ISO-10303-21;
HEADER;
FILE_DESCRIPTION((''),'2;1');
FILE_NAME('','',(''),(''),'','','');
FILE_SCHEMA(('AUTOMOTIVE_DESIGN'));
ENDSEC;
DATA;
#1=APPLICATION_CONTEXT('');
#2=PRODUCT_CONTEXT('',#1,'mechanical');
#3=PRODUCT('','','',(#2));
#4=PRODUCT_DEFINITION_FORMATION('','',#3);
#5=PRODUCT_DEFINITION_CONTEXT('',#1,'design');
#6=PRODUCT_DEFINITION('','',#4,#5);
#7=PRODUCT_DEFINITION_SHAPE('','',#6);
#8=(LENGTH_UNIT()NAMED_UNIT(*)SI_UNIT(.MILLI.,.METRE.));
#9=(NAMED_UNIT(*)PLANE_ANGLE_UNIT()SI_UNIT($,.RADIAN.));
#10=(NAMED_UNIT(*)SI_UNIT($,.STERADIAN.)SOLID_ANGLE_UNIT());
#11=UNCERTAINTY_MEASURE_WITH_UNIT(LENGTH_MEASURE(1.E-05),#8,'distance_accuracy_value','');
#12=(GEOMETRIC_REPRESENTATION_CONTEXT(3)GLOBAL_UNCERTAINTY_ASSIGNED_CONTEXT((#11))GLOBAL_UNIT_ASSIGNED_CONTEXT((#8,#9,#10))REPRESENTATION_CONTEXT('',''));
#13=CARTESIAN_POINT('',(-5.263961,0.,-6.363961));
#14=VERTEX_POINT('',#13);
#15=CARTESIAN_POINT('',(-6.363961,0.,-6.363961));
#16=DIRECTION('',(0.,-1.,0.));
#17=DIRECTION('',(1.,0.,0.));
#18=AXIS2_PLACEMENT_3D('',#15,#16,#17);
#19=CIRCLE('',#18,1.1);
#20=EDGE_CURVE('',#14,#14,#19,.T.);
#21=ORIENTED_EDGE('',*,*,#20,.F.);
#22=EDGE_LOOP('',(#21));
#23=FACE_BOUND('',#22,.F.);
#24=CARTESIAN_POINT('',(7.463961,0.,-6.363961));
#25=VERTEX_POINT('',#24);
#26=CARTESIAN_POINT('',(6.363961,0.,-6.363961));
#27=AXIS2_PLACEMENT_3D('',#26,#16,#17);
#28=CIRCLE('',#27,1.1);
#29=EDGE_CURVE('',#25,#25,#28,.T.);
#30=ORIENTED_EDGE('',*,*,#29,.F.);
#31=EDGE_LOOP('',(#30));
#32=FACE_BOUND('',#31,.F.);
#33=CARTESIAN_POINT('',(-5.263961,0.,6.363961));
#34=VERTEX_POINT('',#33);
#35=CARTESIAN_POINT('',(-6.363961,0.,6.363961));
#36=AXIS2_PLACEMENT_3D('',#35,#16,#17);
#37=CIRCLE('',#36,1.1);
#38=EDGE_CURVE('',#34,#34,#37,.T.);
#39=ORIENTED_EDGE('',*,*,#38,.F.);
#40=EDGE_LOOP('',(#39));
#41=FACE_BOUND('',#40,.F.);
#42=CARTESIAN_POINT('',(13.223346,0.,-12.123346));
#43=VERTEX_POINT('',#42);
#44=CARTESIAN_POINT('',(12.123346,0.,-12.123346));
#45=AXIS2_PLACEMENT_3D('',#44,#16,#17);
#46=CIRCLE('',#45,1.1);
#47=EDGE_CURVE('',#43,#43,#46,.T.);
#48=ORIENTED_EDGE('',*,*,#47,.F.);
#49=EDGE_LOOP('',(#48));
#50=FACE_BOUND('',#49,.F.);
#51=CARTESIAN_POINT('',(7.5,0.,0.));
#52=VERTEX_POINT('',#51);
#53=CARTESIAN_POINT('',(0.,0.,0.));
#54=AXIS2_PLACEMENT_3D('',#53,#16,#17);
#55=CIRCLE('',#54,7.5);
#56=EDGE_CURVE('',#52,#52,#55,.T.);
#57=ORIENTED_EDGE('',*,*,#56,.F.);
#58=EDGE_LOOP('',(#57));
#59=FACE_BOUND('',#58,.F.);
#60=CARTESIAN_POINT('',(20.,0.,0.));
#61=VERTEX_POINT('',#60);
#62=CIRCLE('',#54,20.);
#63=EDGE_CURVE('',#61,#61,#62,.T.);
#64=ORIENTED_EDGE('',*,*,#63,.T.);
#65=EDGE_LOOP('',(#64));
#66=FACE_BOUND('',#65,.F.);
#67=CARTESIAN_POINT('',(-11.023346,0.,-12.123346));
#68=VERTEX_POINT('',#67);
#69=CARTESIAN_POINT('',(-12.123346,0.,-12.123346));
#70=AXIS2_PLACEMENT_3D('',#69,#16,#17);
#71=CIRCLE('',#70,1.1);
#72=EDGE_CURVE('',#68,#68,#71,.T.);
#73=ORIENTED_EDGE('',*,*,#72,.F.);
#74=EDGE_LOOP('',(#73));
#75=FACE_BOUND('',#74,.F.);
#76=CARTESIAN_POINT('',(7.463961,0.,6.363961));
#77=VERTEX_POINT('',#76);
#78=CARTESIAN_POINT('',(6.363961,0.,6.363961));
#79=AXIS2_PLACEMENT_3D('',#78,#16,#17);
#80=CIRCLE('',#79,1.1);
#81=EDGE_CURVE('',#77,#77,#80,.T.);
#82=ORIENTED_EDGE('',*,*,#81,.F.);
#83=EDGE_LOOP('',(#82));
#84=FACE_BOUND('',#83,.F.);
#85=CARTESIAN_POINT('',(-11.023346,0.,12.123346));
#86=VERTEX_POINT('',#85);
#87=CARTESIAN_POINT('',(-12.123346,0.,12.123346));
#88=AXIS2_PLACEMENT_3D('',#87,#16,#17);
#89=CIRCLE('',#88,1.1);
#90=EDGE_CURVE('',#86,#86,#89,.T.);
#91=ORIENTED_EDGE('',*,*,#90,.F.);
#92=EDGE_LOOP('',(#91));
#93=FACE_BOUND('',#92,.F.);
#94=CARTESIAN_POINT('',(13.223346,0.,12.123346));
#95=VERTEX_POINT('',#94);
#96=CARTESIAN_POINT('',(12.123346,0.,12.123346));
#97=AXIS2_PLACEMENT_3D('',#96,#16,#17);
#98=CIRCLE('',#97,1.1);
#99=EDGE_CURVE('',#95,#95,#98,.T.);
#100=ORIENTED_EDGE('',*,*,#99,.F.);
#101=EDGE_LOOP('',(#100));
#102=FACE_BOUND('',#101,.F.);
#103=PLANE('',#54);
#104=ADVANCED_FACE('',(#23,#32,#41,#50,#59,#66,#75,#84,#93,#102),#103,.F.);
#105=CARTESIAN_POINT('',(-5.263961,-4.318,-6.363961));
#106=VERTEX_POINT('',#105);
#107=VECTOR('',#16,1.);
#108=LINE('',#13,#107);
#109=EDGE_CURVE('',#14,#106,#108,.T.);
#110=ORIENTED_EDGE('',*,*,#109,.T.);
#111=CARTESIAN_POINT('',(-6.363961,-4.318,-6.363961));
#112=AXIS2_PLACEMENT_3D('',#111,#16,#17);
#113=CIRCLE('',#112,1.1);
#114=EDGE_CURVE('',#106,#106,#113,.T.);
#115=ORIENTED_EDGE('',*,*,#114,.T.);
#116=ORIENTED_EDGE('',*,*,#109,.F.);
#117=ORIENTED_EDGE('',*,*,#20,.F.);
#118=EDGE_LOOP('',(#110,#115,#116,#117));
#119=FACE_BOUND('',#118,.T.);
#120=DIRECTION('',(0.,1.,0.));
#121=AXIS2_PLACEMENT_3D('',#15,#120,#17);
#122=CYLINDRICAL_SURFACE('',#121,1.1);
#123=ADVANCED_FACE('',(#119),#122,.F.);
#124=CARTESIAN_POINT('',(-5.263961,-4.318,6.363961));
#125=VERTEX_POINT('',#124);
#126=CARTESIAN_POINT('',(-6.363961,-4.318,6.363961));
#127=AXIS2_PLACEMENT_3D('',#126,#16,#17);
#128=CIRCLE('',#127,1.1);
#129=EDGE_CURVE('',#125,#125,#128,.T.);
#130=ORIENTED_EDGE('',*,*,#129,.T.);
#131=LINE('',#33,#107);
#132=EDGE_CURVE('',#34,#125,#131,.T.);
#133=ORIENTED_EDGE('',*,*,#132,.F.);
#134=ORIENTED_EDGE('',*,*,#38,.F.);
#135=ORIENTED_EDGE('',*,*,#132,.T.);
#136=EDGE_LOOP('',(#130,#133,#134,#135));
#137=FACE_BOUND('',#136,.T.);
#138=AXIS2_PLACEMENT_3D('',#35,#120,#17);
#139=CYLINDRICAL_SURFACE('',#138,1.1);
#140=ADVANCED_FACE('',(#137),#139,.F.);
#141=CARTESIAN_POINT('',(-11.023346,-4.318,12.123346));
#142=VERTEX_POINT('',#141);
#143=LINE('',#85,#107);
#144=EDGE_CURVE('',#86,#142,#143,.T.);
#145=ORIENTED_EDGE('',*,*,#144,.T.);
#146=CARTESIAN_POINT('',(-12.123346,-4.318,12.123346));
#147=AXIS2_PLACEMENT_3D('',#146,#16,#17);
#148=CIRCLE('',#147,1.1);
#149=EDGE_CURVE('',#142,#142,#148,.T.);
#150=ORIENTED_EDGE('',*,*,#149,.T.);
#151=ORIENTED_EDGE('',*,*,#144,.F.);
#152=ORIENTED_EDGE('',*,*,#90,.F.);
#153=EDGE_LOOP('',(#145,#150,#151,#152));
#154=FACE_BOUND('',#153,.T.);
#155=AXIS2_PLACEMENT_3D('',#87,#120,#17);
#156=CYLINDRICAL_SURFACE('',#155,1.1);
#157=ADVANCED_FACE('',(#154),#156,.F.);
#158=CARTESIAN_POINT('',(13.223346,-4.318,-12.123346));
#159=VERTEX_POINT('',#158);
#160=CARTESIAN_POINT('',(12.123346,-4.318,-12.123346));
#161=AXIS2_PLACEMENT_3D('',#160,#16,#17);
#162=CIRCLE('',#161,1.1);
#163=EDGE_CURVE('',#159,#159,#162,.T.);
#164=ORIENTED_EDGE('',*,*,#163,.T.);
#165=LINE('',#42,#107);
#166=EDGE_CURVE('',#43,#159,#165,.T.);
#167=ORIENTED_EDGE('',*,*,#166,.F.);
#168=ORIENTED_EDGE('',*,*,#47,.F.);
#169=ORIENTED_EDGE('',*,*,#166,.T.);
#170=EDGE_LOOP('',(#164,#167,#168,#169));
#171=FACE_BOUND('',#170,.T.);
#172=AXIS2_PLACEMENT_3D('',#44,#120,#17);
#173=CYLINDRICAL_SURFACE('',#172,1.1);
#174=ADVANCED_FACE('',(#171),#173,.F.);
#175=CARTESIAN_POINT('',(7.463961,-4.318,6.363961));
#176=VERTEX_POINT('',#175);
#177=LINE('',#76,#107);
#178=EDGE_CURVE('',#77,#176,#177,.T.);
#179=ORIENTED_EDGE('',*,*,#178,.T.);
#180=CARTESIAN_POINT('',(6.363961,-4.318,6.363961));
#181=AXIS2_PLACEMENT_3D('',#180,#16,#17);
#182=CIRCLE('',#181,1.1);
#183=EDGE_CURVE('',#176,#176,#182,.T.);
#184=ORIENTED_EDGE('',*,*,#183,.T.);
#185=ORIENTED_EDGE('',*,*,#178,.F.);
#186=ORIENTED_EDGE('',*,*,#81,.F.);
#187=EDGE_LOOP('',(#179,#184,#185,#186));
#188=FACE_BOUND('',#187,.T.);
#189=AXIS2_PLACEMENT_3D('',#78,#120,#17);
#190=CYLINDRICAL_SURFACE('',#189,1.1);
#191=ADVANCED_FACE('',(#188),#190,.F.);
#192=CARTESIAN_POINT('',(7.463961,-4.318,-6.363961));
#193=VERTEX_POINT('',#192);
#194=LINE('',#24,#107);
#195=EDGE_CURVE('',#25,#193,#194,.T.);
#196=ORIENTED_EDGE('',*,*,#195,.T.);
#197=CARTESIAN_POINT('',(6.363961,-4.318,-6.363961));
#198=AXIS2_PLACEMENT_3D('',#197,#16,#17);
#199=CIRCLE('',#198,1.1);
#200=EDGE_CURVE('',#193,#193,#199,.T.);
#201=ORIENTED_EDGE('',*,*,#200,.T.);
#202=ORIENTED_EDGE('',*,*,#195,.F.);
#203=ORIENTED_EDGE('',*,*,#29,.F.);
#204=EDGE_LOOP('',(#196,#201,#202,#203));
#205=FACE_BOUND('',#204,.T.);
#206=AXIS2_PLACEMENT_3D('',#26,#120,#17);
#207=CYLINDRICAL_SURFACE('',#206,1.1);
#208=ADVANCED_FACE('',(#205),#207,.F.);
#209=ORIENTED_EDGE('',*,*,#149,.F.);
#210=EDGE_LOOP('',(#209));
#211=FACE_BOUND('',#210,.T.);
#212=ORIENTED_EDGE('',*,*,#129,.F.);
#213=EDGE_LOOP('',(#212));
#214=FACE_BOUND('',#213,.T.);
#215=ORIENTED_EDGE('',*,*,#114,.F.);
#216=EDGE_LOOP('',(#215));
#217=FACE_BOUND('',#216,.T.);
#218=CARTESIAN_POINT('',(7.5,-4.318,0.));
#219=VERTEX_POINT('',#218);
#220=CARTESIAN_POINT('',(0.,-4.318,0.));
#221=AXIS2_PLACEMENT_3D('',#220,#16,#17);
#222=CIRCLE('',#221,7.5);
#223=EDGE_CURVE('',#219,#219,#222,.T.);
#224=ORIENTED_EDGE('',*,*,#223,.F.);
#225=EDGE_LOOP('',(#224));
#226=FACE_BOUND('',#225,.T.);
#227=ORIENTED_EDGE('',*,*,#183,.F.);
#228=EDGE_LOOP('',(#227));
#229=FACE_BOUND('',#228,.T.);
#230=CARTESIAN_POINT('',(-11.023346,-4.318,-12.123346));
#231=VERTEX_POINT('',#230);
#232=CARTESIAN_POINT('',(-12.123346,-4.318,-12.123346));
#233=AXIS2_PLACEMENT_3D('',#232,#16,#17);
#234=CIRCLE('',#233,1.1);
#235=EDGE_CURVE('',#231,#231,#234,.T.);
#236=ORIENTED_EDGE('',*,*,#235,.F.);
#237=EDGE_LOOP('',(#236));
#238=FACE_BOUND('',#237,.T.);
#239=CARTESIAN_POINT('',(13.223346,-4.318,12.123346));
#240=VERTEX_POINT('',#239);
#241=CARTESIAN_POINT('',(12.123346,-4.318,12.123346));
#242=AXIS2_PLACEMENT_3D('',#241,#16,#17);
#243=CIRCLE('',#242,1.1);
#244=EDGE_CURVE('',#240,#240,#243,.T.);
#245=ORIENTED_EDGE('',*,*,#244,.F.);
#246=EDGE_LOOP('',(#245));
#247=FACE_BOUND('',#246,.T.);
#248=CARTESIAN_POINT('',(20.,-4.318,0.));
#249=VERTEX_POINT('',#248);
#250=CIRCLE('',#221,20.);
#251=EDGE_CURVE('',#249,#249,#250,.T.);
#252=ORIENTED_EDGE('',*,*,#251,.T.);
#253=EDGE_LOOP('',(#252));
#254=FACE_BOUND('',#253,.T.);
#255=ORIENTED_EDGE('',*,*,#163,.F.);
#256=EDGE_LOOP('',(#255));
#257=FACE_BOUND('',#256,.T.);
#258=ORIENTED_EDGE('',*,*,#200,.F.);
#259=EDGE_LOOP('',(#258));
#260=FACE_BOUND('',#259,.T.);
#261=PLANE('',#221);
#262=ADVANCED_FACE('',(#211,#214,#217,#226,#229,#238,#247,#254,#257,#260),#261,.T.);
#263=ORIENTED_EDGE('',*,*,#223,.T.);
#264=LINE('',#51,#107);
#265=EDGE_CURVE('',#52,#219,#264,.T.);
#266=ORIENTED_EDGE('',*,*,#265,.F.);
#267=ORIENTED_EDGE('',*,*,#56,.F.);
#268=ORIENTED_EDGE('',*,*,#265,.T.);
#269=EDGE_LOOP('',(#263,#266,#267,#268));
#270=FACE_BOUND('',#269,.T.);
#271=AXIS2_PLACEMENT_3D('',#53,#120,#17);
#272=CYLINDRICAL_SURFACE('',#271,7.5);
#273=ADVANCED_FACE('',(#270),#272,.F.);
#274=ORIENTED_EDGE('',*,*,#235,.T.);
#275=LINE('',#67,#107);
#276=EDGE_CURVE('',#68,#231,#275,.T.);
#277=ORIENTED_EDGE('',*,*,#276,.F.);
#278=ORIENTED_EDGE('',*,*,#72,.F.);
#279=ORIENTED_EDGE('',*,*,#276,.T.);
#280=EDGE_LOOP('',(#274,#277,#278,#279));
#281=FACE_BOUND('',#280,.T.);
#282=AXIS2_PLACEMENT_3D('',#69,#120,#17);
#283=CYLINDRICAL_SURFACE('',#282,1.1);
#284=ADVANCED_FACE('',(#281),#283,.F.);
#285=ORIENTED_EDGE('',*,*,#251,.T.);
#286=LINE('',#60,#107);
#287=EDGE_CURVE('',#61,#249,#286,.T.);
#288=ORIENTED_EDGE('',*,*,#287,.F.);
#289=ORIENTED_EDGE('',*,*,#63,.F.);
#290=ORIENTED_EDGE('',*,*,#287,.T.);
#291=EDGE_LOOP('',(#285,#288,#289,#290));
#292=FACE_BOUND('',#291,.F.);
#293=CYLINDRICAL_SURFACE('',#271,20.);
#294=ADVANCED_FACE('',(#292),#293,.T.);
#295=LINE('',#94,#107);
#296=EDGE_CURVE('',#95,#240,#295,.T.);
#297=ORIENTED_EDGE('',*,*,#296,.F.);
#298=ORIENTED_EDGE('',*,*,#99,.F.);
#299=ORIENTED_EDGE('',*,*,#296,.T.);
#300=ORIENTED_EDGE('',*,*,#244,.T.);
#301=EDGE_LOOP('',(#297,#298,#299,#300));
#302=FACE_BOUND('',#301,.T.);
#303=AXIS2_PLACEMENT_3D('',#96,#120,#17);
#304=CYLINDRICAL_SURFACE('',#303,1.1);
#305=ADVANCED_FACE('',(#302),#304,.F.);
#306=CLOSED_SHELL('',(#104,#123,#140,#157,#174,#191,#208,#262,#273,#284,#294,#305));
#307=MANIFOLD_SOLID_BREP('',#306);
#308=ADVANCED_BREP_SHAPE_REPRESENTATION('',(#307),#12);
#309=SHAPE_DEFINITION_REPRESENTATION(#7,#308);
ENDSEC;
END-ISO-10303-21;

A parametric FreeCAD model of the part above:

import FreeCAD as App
import Part
import Sketcher
from FreeCAD import Vector

doc = App.newDocument("Part")
body = doc.addObject("PartDesign::Body", "Body")

# Sketch on XZ plane
sketch1 = body.newObject("Sketcher::SketchObject", "Sketch")
sketch1.AttachmentSupport = (doc.getObject("XZ_Plane"), [""])
sketch1.MapMode = "FlatFace"
sketch1.addGeometry(Part.Circle(Vector(0, 0, 0), Vector(0, 0, 1), 20), False)
sketch1.addGeometry(Part.Circle(Vector(-12.1, -12.1, 0), Vector(0, 0, 1), 1.1), False)
sketch1.addGeometry(Part.Circle(Vector(-6.4, -6.4, 0), Vector(0, 0, 1), 1.1), False)
sketch1.addGeometry(Part.Circle(Vector(12.1, -12.1, 0), Vector(0, 0, 1), 1.1), False)
sketch1.addGeometry(Part.Circle(Vector(6.4, -6.4, 0), Vector(0, 0, 1), 1.1), False)
sketch1.addGeometry(Part.Circle(Vector(-6.4, 6.4, 0), Vector(0, 0, 1), 1.1), False)
sketch1.addGeometry(Part.Circle(Vector(-12.1, 12.1, 0), Vector(0, 0, 1), 1.1), False)
sketch1.addGeometry(Part.Circle(Vector(0, 0, 0), Vector(0, 0, 1), 7.5), False)
sketch1.addGeometry(Part.Circle(Vector(6.4, 6.4, 0), Vector(0, 0, 1), 1.1), False)
sketch1.addGeometry(Part.Circle(Vector(12.1, 12.1, 0), Vector(0, 0, 1), 1.1), False)
sketch1.addConstraint(Sketcher.Constraint("Coincident", 0, 3, -1, 1))
sketch1.addConstraint(Sketcher.Constraint("Coincident", 7, 3, -1, 1))
sketch1.addConstraint(Sketcher.Constraint("Equal", 1, 2))
sketch1.addConstraint(Sketcher.Constraint("Equal", 2, 3))
sketch1.addConstraint(Sketcher.Constraint("Equal", 3, 4))
sketch1.addConstraint(Sketcher.Constraint("Equal", 4, 5))
sketch1.addConstraint(Sketcher.Constraint("Equal", 5, 6))
sketch1.addConstraint(Sketcher.Constraint("Equal", 6, 8))
sketch1.addConstraint(Sketcher.Constraint("Equal", 8, 9))
sketch1.addConstraint(Sketcher.Constraint("Symmetric", 4, 3, 5, 3, -1, 1))
sketch1.addConstraint(Sketcher.Constraint("Symmetric", 3, 3, 6, 3, -1, 1))
sketch1.addConstraint(Sketcher.Constraint("Symmetric", 2, 3, 8, 3, -1, 1))
sketch1.addConstraint(Sketcher.Constraint("Symmetric", 1, 3, 9, 3, -1, 1))
sketch1.addConstraint(Sketcher.Constraint("Symmetric", 1, 3, 3, 3, -2))
sketch1.addConstraint(Sketcher.Constraint("Symmetric", 2, 3, 4, 3, -2))
sketch1.addConstraint(Sketcher.Constraint("Diameter", 0, 40.0))
sketch1.addConstraint(Sketcher.Constraint("Diameter", 7, 15.0))
sketch1.addConstraint(Sketcher.Constraint("Diameter", 1, 2.2))
sketch1.addConstraint(Sketcher.Constraint("DistanceX", 2, 3, -1, 1, 6.363961))
sketch1.addConstraint(Sketcher.Constraint("DistanceY", 2, 3, -1, 1, 6.363961))
sketch1.addConstraint(Sketcher.Constraint("DistanceX", 1, 3, 3, 3, 24.246692))
sketch1.addConstraint(Sketcher.Constraint("DistanceY", 1, 3, 6, 3, 24.246692))
pad1 = body.newObject("PartDesign::Pad", "Pad")
pad1.Profile = sketch1
pad1.Length = 4.318

doc.recompute()
